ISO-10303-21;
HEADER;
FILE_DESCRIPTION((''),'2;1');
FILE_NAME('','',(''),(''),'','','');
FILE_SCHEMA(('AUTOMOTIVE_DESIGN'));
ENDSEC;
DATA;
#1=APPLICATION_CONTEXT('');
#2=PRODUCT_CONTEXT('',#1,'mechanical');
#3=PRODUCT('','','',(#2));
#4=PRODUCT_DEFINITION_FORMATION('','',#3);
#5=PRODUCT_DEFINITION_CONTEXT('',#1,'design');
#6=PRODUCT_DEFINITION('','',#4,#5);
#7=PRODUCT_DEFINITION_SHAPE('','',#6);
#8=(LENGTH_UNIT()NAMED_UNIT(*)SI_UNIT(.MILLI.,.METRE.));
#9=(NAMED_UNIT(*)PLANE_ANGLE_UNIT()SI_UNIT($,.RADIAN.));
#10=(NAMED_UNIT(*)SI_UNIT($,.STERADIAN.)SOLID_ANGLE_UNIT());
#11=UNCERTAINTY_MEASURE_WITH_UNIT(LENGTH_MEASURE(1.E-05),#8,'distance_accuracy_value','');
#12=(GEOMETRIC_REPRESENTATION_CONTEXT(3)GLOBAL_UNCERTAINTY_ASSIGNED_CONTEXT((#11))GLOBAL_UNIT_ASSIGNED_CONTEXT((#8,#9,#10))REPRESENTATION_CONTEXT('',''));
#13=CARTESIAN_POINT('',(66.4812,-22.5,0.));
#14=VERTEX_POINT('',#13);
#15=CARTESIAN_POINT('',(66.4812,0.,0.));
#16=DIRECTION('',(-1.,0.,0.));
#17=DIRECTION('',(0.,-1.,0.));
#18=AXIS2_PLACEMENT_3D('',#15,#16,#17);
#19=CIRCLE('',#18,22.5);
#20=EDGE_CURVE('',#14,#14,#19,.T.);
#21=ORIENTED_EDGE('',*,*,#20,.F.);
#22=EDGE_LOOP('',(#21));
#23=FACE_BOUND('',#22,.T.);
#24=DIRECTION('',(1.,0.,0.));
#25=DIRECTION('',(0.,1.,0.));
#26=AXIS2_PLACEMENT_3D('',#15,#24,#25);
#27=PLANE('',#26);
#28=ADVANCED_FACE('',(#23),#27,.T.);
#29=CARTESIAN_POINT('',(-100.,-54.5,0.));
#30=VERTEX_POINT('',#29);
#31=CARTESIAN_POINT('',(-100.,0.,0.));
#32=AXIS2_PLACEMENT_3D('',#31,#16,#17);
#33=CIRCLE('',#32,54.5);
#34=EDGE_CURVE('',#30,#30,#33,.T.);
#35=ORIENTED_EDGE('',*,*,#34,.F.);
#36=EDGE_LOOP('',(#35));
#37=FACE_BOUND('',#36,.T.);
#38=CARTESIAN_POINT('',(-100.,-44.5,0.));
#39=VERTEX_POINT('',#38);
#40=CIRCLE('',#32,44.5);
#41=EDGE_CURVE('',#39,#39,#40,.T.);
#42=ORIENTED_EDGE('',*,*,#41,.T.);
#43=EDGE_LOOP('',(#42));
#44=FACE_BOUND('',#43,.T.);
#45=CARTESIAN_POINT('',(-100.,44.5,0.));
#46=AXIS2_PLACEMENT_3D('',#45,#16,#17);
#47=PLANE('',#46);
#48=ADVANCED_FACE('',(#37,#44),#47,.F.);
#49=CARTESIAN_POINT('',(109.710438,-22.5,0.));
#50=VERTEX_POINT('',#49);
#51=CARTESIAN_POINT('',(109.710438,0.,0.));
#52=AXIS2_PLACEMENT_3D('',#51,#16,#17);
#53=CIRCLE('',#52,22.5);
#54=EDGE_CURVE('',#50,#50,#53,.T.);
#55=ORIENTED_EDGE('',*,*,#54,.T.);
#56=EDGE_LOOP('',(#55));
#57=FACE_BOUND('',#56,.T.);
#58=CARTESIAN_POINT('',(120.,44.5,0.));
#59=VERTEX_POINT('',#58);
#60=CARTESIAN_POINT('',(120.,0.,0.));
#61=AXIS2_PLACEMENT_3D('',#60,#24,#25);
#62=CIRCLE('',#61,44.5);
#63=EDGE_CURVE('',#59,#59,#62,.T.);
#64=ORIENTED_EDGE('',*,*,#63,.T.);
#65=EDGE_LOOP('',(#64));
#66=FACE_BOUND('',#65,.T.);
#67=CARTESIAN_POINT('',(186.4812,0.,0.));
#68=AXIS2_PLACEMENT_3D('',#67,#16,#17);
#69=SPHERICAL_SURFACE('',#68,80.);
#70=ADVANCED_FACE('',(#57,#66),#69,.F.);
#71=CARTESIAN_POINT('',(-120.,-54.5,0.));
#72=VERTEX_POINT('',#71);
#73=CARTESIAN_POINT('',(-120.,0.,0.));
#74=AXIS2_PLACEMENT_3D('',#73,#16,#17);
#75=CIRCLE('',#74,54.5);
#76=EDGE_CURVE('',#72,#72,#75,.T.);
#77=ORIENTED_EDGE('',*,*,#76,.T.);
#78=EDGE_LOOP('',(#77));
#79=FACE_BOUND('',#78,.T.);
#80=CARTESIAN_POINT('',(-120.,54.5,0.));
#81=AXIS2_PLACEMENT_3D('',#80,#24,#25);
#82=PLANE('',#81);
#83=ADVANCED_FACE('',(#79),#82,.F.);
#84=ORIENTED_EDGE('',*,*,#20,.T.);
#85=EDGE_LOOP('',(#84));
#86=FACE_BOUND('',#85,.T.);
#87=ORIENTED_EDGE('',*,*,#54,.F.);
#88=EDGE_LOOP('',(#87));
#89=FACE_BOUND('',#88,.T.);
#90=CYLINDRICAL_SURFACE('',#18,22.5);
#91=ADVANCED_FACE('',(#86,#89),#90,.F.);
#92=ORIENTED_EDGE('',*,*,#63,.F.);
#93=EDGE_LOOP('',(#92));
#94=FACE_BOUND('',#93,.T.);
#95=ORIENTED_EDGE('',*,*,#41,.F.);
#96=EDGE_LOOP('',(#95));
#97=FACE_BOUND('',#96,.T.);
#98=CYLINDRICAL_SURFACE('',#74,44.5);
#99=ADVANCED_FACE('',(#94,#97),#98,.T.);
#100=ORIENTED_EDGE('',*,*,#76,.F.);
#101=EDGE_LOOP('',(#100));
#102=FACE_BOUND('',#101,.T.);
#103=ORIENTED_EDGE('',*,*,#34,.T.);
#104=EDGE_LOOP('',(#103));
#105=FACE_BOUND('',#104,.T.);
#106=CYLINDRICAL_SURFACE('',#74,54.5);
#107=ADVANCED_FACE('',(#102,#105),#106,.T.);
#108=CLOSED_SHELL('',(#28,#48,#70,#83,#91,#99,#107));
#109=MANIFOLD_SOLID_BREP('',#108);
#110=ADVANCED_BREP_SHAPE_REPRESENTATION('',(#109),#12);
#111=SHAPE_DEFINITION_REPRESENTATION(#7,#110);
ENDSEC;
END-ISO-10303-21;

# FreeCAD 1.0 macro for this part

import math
import FreeCAD as App
import Part
import Sketcher
from FreeCAD import Vector


def add_polygon(sketch, points):
    """Adds a closed chain of lines whose ends are joined by coincident constraints."""
    first, n = sketch.GeometryCount, len(points)
    for a, b in zip(points, points[1:] + points[:1]):
        sketch.addGeometry(Part.LineSegment(App.Vector(*a, 0), App.Vector(*b, 0)), False)
    for i in range(n):
        sketch.addConstraint(Sketcher.Constraint("Coincident", first + i, 2, first + (i + 1) % n, 1))

doc = App.newDocument("Part")
body = doc.addObject("PartDesign::Body", "Body")

# Sketch on XY plane
sketch1 = doc.addObject("Sketcher::SketchObject", "Sketch")
body.addObject(sketch1)
sketch1.AttachmentSupport = (doc.XY_Plane, [""])
sketch1.MapMode = "FlatFace"
add_polygon(sketch1, [(-120, 0), (120, 0), (120, 44), (-100, 44), (-100, 54), (-120, 54)])  # lines 0-5
sketch1.addConstraint(Sketcher.Constraint("Horizontal", 0))
sketch1.addConstraint(Sketcher.Constraint("Vertical", 1))
sketch1.addConstraint(Sketcher.Constraint("Horizontal", 2))
sketch1.addConstraint(Sketcher.Constraint("Vertical", 3))
sketch1.addConstraint(Sketcher.Constraint("Horizontal", 4))
sketch1.addConstraint(Sketcher.Constraint("Vertical", 5))
sketch1.addConstraint(Sketcher.Constraint("Symmetric", 0, 2, 5, 2, -1, 1))
sketch1.addConstraint(Sketcher.Constraint("DistanceX", 0, 1, 0, 2, 240.0))
sketch1.addConstraint(Sketcher.Constraint("DistanceX", 2, 2, 2, 1, 220.0))
sketch1.addConstraint(Sketcher.Constraint("DistanceY", 3, 1, 3, 2, 10.0))
sketch1.addConstraint(Sketcher.Constraint("DistanceY", 1, 1, 1, 2, 44.5))
revolution = doc.addObject("PartDesign::Revolution", "Revolution")
body.addObject(revolution)
revolution.Profile = sketch1
revolution.ReferenceAxis = (sketch1, ["H_Axis"])
revolution.Angle = 360

# Sketch on XY plane
sketch2 = doc.addObject("Sketcher::SketchObject", "Sketch001")
body.addObject(sketch2)
sketch2.AttachmentSupport = (doc.XY_Plane, [""])
sketch2.MapMode = "FlatFace"
sketch2.addGeometry(Part.LineSegment(Vector(66, 0, 0), Vector(266, 0, 0)), False)
sketch2.addGeometry(Part.ArcOfCircle(Part.Circle(Vector(186, 0, 0), Vector(0, 0, 1), 80), math.radians(0), math.radians(164)), False)
sketch2.addGeometry(Part.LineSegment(Vector(110, 22, 0), Vector(66, 22, 0)), False)
sketch2.addGeometry(Part.LineSegment(Vector(66, 22, 0), Vector(66, 0, 0)), False)
sketch2.addConstraint(Sketcher.Constraint("Coincident", 0, 2, 1, 1))
sketch2.addConstraint(Sketcher.Constraint("Coincident", 1, 2, 2, 1))
sketch2.addConstraint(Sketcher.Constraint("Coincident", 2, 2, 3, 1))
sketch2.addConstraint(Sketcher.Constraint("Coincident", 3, 2, 0, 1))
sketch2.addConstraint(Sketcher.Constraint("Horizontal", 0))
sketch2.addConstraint(Sketcher.Constraint("Horizontal", 2))
sketch2.addConstraint(Sketcher.Constraint("Vertical", 3))
sketch2.addConstraint(Sketcher.Constraint("PointOnObject", 1, 3, -1))
sketch2.addConstraint(Sketcher.Constraint("PointOnObject", 0, 2, -1))
sketch2.addConstraint(Sketcher.Constraint("Radius", 1, 80.0))
sketch2.addConstraint(Sketcher.Constraint("DistanceX", 0, 1, 0, 2, 200.0))
sketch2.addConstraint(Sketcher.Constraint("DistanceY", 3, 2, 3, 1, 22.5))
sketch2.addConstraint(Sketcher.Constraint("DistanceX", -1, 1, 1, 3, 186.4812))
groove = doc.addObject("PartDesign::Groove", "Groove")
body.addObject(groove)
groove.Profile = sketch2
groove.ReferenceAxis = (sketch2, ["H_Axis"])
groove.Angle = 360

doc.recompute()
